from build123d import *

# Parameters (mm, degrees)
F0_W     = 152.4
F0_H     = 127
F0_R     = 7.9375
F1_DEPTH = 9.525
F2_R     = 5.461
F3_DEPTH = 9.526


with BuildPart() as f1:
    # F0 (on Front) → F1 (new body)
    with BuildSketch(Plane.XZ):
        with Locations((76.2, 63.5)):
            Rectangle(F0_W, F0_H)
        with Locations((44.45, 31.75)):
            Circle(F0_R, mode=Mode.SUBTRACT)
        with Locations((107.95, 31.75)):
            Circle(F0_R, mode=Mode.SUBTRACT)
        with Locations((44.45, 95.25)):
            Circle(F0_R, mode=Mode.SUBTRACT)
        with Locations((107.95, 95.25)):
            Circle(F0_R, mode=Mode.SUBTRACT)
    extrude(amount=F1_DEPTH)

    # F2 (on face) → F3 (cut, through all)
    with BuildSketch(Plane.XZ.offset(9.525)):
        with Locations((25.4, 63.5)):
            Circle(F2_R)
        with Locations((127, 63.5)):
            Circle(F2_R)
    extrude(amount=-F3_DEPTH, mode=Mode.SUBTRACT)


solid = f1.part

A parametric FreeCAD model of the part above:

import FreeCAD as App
import Part
import Sketcher
Q = App.Units.Quantity

doc = App.newDocument("Part")
body = doc.addObject("PartDesign::Body", "Body")

sketch1 = body.newObject("Sketcher::SketchObject", "Sketch")
sketch1.AttachmentSupport = (doc.getObject("XZ_Plane"), [""])
sketch1.MapMode = "FlatFace"
sketch1.addGeometry([
    Part.LineSegment(App.Vector(0, 127, 0), App.Vector(0, 0, 0)),
    Part.LineSegment(App.Vector(0, 0, 0), App.Vector(152, 0, 0)),
    Part.LineSegment(App.Vector(152, 0, 0), App.Vector(152, 127, 0)),
    Part.LineSegment(App.Vector(152, 127, 0), App.Vector(0, 127, 0)),
    Part.Circle(App.Vector(44, 32, 0), App.Vector(0, 0, 1), 8),
    Part.Circle(App.Vector(108, 32, 0), App.Vector(0, 0, 1), 8),
    Part.Circle(App.Vector(44, 95, 0), App.Vector(0, 0, 1), 8),
    Part.Circle(App.Vector(108, 95, 0), App.Vector(0, 0, 1), 8),
], False)
sketch1.addConstraint([
    Sketcher.Constraint("Coincident", 0, 2, 1, 1),
    Sketcher.Constraint("Coincident", 1, 2, 2, 1),
    Sketcher.Constraint("Coincident", 2, 2, 3, 1),
    Sketcher.Constraint("Coincident", 3, 2, 0, 1),
    Sketcher.Constraint("Vertical", 0),
    Sketcher.Constraint("Horizontal", 1),
    Sketcher.Constraint("Vertical", 2),
    Sketcher.Constraint("Horizontal", 3),
    Sketcher.Constraint("Coincident", 0, 2, -1, 1),
    Sketcher.Constraint("Equal", 4, 5),
    Sketcher.Constraint("Equal", 5, 6),
    Sketcher.Constraint("Equal", 6, 7),
    Sketcher.Constraint("Horizontal", 4, 3, 5, 3),
    Sketcher.Constraint("Horizontal", 6, 3, 7, 3),
    Sketcher.Constraint("Vertical", 4, 3, 6, 3),
    Sketcher.Constraint("Vertical", 5, 3, 7, 3),
    Sketcher.Constraint("DistanceX", 1, 1, 1, 2, Q("6 in")),
    Sketcher.Constraint("DistanceY", 0, 2, 0, 1, Q("5 in")),
    Sketcher.Constraint("Diameter", 4, Q("0.625 in")),
    Sketcher.Constraint("DistanceX", 4, 3, 5, 3, Q("2.5 in")),
    Sketcher.Constraint("DistanceY", 4, 3, 6, 3, Q("2.5 in")),
    Sketcher.Constraint("DistanceX", -1, 1, 4, 3, Q("1.75 in")),
    Sketcher.Constraint("DistanceY", -1, 1, 4, 3, Q("1.25 in")),
])
pad1 = body.newObject("PartDesign::Pad", "Pad")
pad1.Profile = sketch1
pad1.Length = Q("0.375 in")

sketch2 = body.newObject("Sketcher::SketchObject", "Sketch001")
sketch2.AttachmentSupport = (doc.getObject("XZ_Plane"), [""])
sketch2.MapMode = "FlatFace"
sketch2.AttachmentOffset = App.Placement(App.Vector(0, 0, 0.375 * 25.4), App.Rotation())
sketch2.addGeometry([
    Part.Circle(App.Vector(25, 64, 0), App.Vector(0, 0, 1), 5),
    Part.Circle(App.Vector(127, 64, 0), App.Vector(0, 0, 1), 5),
], False)
sketch2.addConstraint([
    Sketcher.Constraint("Equal", 0, 1),
    Sketcher.Constraint("Horizontal", 0, 3, 1, 3),
    Sketcher.Constraint("Diameter", 0, Q("0.43 in")),
    Sketcher.Constraint("DistanceX", -1, 1, 0, 3, Q("1 in")),
    Sketcher.Constraint("DistanceX", -1, 1, 1, 3, Q("5 in")),
    Sketcher.Constraint("DistanceY", -1, 1, 0, 3, Q("2.5 in")),
])
pocket1 = body.newObject("PartDesign::Pocket", "Pocket")
pocket1.Profile = sketch2
pocket1.Type = "ThroughAll"

doc.recompute()
